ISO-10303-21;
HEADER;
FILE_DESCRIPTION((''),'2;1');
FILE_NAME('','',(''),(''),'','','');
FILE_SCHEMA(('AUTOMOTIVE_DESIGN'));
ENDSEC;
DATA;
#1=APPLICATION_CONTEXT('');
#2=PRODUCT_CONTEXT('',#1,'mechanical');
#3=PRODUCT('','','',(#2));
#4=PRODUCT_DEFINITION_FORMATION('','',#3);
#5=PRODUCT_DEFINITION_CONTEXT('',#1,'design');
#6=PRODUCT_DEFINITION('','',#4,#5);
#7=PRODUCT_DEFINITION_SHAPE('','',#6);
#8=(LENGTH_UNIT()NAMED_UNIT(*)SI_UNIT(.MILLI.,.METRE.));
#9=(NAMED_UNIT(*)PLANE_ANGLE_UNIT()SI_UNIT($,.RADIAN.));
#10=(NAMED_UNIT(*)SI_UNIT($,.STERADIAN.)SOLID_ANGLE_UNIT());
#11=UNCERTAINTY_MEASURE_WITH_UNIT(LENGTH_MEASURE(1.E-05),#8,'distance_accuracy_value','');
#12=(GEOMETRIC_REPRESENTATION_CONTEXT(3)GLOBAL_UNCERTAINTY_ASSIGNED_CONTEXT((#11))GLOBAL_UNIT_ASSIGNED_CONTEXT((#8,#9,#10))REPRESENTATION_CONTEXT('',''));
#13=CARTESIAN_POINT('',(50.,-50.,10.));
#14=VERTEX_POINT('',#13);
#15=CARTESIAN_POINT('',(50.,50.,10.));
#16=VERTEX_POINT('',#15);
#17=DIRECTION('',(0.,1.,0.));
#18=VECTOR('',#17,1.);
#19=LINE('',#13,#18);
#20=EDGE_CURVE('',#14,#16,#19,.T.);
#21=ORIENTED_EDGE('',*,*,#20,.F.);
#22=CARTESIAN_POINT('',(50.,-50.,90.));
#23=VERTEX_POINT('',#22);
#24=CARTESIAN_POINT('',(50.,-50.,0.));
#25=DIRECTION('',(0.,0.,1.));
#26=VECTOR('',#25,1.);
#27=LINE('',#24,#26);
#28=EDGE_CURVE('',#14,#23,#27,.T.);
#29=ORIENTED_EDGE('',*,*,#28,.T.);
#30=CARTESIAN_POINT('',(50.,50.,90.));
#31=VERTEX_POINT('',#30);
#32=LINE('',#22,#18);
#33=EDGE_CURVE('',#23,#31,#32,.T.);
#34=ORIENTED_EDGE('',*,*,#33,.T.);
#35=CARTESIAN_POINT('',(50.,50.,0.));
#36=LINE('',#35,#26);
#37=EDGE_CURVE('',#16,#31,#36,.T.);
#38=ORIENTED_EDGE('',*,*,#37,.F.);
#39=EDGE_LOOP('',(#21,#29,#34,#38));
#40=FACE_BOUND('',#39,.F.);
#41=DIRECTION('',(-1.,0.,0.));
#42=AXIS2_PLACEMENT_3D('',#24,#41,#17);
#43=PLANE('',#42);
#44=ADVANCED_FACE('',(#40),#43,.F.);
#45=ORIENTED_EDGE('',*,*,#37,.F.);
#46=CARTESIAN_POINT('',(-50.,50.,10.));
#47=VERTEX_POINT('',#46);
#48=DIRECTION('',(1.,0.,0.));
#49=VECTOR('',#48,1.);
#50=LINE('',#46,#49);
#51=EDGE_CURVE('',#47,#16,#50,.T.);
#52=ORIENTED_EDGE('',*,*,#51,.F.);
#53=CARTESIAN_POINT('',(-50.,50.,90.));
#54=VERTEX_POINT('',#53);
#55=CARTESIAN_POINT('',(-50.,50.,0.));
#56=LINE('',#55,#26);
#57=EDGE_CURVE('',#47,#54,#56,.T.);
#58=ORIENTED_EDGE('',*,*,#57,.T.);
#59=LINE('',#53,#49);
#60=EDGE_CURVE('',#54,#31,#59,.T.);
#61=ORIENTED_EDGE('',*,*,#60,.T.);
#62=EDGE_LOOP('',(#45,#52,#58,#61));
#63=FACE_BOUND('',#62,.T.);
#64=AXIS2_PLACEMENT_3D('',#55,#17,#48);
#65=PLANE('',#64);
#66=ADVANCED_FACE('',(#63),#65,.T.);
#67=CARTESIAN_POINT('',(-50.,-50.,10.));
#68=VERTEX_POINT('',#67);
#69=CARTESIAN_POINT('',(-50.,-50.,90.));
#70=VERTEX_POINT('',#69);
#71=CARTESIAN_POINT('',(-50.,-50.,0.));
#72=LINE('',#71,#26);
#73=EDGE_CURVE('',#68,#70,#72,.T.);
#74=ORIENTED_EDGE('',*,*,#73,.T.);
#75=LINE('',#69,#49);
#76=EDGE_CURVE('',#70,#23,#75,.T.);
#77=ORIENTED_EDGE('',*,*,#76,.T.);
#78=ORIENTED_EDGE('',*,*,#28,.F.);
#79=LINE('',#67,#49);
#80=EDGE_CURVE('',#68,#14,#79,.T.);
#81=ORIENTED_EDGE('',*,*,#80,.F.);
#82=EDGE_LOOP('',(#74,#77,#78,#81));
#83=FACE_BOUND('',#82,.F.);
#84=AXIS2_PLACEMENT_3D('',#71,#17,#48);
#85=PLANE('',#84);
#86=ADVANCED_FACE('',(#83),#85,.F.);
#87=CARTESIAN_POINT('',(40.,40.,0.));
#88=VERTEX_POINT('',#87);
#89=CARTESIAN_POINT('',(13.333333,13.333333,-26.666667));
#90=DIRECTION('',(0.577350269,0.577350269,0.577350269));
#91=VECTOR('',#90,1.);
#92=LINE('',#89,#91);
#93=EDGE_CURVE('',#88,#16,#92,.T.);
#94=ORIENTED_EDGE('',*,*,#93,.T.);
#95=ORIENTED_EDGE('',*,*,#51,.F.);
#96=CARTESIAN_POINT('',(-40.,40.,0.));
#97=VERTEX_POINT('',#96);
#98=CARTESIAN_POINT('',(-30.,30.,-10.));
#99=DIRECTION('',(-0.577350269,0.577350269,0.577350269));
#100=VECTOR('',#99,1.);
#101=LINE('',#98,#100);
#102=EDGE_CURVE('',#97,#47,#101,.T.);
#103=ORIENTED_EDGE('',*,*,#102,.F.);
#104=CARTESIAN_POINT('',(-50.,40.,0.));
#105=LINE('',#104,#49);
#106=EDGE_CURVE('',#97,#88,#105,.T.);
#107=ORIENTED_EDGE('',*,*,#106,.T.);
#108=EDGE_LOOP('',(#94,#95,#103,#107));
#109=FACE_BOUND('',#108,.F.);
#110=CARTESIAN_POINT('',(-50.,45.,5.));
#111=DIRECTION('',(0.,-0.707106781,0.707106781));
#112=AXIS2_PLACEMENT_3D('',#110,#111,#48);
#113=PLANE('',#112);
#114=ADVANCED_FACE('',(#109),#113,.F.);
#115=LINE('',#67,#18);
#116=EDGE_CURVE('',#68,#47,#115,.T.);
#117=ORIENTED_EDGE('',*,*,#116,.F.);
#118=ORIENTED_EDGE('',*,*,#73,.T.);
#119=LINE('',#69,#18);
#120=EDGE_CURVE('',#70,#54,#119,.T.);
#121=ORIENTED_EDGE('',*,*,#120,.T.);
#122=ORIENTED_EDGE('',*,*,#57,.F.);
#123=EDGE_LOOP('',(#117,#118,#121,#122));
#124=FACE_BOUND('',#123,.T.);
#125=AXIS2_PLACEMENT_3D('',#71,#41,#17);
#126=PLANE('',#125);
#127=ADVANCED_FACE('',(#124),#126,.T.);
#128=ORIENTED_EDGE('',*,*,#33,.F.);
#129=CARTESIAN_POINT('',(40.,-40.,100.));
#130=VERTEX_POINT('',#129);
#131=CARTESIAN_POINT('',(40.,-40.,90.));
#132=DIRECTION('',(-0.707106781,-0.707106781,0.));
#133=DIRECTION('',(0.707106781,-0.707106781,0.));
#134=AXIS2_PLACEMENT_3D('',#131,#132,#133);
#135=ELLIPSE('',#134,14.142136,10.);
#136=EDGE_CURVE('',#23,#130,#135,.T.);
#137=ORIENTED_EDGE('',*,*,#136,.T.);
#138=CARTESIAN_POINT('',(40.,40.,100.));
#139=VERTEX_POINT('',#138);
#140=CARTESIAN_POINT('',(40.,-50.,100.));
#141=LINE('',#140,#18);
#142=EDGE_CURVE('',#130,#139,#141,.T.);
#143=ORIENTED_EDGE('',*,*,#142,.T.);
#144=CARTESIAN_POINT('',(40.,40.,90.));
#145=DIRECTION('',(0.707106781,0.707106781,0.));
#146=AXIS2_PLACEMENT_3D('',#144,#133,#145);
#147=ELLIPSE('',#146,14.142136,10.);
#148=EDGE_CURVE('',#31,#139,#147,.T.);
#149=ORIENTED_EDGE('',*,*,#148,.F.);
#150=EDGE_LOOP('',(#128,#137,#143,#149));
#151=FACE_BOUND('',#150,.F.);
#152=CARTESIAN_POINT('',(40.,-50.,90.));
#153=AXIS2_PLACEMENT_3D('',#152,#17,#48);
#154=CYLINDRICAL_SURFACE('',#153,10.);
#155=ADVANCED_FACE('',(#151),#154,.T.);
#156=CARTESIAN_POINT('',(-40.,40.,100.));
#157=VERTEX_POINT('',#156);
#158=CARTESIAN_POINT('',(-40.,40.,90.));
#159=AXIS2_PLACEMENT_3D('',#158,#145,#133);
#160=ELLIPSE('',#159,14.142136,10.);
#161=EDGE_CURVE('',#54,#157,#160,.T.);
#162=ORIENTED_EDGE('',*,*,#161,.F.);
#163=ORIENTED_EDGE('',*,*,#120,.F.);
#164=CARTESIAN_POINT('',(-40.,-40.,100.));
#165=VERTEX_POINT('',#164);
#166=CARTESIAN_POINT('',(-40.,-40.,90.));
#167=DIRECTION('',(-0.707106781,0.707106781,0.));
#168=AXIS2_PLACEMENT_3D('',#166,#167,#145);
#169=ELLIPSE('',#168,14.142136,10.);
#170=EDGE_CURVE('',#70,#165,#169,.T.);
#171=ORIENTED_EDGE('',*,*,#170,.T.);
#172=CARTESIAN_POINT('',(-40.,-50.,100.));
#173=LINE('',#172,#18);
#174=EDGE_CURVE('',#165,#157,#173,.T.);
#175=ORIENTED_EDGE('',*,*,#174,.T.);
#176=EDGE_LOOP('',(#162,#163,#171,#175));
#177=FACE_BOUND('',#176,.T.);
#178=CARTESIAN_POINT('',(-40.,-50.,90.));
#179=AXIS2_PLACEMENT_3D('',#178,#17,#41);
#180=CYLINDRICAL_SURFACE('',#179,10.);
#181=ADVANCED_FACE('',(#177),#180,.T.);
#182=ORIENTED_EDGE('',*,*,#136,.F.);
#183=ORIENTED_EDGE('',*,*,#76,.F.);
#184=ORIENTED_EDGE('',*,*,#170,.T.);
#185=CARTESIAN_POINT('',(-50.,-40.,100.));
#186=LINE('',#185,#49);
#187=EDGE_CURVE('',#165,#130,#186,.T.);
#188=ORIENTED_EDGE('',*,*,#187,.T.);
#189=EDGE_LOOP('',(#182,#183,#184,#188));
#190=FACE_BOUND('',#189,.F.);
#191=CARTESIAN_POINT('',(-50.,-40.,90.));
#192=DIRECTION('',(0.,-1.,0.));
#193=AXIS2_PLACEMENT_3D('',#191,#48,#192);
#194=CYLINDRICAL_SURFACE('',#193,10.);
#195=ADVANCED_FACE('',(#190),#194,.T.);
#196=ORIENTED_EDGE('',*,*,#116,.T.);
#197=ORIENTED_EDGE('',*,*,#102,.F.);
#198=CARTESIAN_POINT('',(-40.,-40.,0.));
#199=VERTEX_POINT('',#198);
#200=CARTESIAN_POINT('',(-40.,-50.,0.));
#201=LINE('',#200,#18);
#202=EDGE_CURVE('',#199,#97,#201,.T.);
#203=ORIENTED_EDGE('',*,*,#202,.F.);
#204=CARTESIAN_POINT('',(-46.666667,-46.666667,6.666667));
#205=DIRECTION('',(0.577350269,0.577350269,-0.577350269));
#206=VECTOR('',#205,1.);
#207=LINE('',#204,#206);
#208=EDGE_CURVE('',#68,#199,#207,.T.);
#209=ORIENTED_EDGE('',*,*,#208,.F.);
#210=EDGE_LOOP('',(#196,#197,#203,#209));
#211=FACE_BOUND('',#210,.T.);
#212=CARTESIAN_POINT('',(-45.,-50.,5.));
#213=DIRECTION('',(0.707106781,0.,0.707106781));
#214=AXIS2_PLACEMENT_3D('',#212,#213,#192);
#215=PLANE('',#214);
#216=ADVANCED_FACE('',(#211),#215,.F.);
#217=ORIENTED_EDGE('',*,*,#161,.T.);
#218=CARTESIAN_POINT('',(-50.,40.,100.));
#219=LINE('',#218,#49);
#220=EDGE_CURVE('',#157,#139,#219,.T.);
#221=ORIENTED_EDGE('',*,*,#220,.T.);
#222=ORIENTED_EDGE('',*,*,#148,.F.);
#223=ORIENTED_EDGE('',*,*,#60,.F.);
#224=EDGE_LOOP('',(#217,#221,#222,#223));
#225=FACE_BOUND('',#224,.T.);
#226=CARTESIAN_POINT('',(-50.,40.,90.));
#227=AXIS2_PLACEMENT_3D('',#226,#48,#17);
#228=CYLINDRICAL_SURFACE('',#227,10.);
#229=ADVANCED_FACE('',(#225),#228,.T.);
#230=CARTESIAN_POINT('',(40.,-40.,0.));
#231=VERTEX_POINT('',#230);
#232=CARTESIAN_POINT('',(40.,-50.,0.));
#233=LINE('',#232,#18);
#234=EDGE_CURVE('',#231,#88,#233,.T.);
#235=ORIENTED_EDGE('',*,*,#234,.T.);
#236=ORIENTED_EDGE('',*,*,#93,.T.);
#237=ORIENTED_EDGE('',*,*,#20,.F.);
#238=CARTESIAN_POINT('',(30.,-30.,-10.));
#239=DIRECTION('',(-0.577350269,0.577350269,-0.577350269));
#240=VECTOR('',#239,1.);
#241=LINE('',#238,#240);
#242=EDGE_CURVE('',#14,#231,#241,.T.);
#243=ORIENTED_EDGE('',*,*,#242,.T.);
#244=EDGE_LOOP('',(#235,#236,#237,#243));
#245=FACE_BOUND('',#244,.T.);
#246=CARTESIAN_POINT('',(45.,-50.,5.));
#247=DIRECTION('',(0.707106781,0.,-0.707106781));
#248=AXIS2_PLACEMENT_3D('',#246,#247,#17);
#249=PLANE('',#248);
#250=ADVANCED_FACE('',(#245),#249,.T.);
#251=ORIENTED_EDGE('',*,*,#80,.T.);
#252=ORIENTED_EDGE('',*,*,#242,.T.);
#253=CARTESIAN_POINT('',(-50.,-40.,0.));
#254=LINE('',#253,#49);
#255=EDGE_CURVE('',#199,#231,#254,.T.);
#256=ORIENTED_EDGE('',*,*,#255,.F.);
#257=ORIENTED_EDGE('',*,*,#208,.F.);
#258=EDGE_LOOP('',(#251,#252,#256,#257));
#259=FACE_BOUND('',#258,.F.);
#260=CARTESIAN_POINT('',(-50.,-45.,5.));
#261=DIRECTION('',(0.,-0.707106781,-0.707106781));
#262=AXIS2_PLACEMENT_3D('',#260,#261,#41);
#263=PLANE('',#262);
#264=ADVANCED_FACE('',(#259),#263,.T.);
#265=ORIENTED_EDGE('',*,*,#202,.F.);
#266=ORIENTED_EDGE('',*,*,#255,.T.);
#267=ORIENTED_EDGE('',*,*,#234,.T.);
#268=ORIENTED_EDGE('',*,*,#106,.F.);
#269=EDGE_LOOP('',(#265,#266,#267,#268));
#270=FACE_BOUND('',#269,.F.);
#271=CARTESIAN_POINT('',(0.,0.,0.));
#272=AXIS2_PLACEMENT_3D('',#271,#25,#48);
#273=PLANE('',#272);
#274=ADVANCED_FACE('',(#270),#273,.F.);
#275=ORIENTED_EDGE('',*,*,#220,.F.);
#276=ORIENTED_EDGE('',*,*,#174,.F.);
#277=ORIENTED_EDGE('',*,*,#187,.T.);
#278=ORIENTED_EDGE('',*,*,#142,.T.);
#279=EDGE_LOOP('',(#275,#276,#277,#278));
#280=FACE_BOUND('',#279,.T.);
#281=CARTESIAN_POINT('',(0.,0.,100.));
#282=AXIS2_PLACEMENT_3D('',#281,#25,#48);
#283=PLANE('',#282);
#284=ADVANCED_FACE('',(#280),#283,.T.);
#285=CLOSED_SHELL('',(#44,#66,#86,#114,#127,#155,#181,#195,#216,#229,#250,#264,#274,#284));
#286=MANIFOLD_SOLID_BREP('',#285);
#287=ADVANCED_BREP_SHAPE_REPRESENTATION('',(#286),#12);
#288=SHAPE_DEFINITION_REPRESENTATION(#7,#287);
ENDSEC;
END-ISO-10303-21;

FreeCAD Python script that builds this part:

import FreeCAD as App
import Part
import Sketcher

V = App.Vector
Q = App.Units.Quantity


def edges_at(feature, points):
    """Names of the edges that pass closest to the given points."""
    edges = feature.Shape.Edges
    near = lambda p: min(range(len(edges)), key=lambda i: edges[i].distToShape(Part.Vertex(*p))[0])
    return sorted({f"Edge{near(p) + 1}" for p in points})

doc = App.newDocument("Part")
body = doc.addObject("PartDesign::Body", "Body")

# Sketch on XY plane
sketch1 = body.newObject("Sketcher::SketchObject", "Sketch")
sketch1.AttachmentSupport = (doc.getObject("XY_Plane"), [""])
sketch1.MapMode = "FlatFace"
sketch1.addGeometry(Part.LineSegment(V(-50, 50, 0), V(-50, -50, 0)), False)
sketch1.addGeometry(Part.LineSegment(V(-50, -50, 0), V(50, -50, 0)), False)
sketch1.addGeometry(Part.LineSegment(V(50, -50, 0), V(50, 50, 0)), False)
sketch1.addGeometry(Part.LineSegment(V(50, 50, 0), V(-50, 50, 0)), False)
sketch1.addConstraint(Sketcher.Constraint("Coincident", 0, 2, 1, 1))
sketch1.addConstraint(Sketcher.Constraint("Coincident", 1, 2, 2, 1))
sketch1.addConstraint(Sketcher.Constraint("Coincident", 2, 2, 3, 1))
sketch1.addConstraint(Sketcher.Constraint("Coincident", 3, 2, 0, 1))
sketch1.addConstraint(Sketcher.Constraint("Vertical", 0))
sketch1.addConstraint(Sketcher.Constraint("Horizontal", 1))
sketch1.addConstraint(Sketcher.Constraint("Vertical", 2))
sketch1.addConstraint(Sketcher.Constraint("Horizontal", 3))
sketch1.addConstraint(Sketcher.Constraint("Symmetric", 0, 2, 2, 2, -1, 1))
sketch1.addConstraint(Sketcher.Constraint("Equal", 3, 0))
sketch1.addConstraint(Sketcher.Constraint("DistanceX", 1, 1, 1, 2, Q("100 mm")))
pad1 = body.newObject("PartDesign::Pad", "Pad")
pad1.Profile = sketch1
pad1.Length = 100
doc.recompute()

fillet = body.newObject("PartDesign::Fillet", "Fillet")
fillet.Base = (pad1, edges_at(pad1, [
    (0, 50, 100),
    (-50, 0, 100),
    (0, -50, 100),
    (50, 0, 100),
]))
fillet.Radius = 10
doc.recompute()

chamfer = body.newObject("PartDesign::Chamfer", "Chamfer")
chamfer.Base = (fillet, edges_at(fillet, [
    (0, 50, 0),
    (-50, 0, 0),
    (0, -50, 0),
    (50, 0, 0),
]))
chamfer.Size = 10

doc.recompute()
